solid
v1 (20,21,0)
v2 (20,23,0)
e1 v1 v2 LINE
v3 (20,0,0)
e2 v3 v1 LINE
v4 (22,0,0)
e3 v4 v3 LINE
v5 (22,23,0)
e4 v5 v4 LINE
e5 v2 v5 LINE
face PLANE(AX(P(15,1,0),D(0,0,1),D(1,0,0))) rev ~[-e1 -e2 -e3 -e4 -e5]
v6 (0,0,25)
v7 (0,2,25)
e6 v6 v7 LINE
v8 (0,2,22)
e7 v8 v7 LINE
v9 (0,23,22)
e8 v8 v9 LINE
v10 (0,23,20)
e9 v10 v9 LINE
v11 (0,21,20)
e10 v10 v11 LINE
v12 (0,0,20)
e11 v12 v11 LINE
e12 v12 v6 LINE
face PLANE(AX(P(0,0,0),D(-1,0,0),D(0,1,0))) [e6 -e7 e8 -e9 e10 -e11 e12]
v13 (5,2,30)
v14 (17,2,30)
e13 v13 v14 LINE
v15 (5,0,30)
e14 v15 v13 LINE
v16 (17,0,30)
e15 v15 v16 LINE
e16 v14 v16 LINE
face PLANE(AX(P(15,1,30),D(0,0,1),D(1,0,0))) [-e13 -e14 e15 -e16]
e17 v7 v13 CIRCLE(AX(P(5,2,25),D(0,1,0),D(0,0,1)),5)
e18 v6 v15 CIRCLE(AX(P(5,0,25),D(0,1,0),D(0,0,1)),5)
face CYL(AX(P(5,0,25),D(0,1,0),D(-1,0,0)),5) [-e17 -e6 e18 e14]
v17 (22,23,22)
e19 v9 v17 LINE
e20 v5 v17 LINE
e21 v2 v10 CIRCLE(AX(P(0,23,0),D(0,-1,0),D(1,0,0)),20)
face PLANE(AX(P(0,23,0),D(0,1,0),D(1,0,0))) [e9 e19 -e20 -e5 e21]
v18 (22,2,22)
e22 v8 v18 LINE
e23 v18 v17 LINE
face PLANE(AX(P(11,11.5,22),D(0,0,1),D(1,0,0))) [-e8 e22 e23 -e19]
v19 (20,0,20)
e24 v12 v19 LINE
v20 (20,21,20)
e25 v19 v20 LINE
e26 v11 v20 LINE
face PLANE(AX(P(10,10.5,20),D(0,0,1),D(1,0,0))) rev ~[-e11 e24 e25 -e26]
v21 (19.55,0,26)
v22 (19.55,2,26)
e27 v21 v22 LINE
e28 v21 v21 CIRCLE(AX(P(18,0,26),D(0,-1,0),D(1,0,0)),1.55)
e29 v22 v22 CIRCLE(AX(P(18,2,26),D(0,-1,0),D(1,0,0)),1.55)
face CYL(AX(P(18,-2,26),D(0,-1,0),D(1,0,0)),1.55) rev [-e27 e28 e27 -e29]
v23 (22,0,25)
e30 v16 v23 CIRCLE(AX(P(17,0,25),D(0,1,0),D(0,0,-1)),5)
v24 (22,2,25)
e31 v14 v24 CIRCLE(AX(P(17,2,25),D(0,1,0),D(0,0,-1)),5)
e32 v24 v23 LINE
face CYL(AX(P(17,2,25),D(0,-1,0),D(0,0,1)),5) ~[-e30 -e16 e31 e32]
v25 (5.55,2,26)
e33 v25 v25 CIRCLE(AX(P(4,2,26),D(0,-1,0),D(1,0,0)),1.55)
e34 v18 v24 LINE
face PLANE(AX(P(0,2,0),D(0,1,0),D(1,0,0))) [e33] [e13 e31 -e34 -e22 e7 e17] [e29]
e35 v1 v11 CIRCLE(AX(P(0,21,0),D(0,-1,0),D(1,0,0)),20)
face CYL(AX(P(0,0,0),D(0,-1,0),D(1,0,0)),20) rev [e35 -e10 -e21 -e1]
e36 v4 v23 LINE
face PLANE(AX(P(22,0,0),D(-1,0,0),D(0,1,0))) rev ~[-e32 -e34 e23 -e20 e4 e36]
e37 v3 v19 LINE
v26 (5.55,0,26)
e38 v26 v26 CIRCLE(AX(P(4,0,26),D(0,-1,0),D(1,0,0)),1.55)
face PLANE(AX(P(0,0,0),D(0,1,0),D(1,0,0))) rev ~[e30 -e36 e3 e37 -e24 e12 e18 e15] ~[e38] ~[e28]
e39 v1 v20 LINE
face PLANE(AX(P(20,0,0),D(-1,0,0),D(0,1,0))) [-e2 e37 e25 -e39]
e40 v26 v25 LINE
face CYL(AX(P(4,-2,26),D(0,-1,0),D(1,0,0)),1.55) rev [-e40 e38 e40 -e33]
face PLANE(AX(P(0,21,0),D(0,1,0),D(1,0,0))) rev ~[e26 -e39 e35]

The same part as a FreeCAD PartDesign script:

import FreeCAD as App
import Part
import Sketcher

V = App.Vector
Q = App.Units.Quantity


def edges_at(feature, points):
    """Names of the edges that pass closest to the given points."""
    edges = feature.Shape.Edges
    near = lambda p: min(range(len(edges)), key=lambda i: edges[i].distToShape(Part.Vertex(*p))[0])
    return sorted({f"Edge{near(p) + 1}" for p in points})

doc = App.newDocument("Part")
params = doc.addObject("Spreadsheet::Sheet", "Params")
for row, (alias, value) in enumerate([
    ("sketch1_diameter", "40 mm"),
    ("pad1_length", "25 mm"),
    ("sketch2_diameter", "3.1 mm"),
    ("pad2_length", "10 mm"),
    ("sketch3_diameter", "3.1 mm"),
    ("pad3_length", "10 mm"),
    ("sketch4_width", "10 mm"),
    ("sketch4_height", "6 mm"),
    ("pad4_length", "31 mm"),
    ("sketch5_width", "20 mm"),
    ("sketch5_height", "21 mm"),
    ("pad5_length", "20 mm"),
    ("sketch6_width", "22 mm"),
    ("sketch6_height", "23 mm"),
    ("pad6_length", "22 mm"),
    ("sketch7_width", "30 mm"),
    ("sketch7_height", "2 mm"),
    ("pad7_length", "30 mm"),
    ("fillet_radius", "5 mm"),
    ("fillet2_radius", "5 mm"),
], start=1):
    params.set(f"A{row}", alias)
    params.set(f"B{row}", "=" + value)
    params.setAlias(f"B{row}", alias)

body = doc.addObject("PartDesign::Body", "Body")

# Sketch on XY plane
sketch1 = body.newObject("Sketcher::SketchObject", "Sketch")
sketch1.AttachmentSupport = (doc.getObject("XY_Plane"), [""])
sketch1.MapMode = "FlatFace"
sketch1.addGeometry(Part.Circle(V(0, 0, 0), V(0, 0, 1), 20), False)
sketch1.addConstraint([
    Sketcher.Constraint("Coincident", 0, 3, -1, 1),
    Sketcher.Constraint("Diameter", 0, Q("40 mm")),
])
sketch1.setExpression("Constraints[1]", "Params.sketch1_diameter")
pad1 = body.newObject("PartDesign::Pad", "Pad")
pad1.Profile = sketch1
pad1.setExpression("Length", "Params.pad1_length")
body2 = doc.addObject("PartDesign::Body", "Body001")
doc.recompute()

body.Placement = App.Placement(V(0, 0, 0), App.Rotation(V(1, 0, 0), 270))
boolean = body2.newObject("PartDesign::Boolean", "Boolean")
boolean.Type = "Fuse"
boolean.addObjects([body])
body3 = doc.addObject("PartDesign::Body", "Body002")

# Sketch on XY plane
sketch2 = body3.newObject("Sketcher::SketchObject", "Sketch001")
sketch2.AttachmentSupport = (doc.getObject("XY_Plane002"), [""])
sketch2.MapMode = "FlatFace"
sketch2.addGeometry(Part.Circle(V(0, 0, 0), V(0, 0, 1), 1.6), False)
sketch2.addConstraint([
    Sketcher.Constraint("Coincident", 0, 3, -1, 1),
    Sketcher.Constraint("Diameter", 0, Q("3.1 mm")),
])
sketch2.setExpression("Constraints[1]", "Params.sketch2_diameter")
pad2 = body3.newObject("PartDesign::Pad", "Pad001")
pad2.Profile = sketch2
pad2.setExpression("Length", "Params.pad2_length")
body4 = doc.addObject("PartDesign::Body", "Body003")
doc.recompute()

body3.Placement = App.Placement(V(0, 0, 0), App.Rotation(V(1, 0, 0), 270))
boolean2 = body4.newObject("PartDesign::Boolean", "Boolean001")
boolean2.Type = "Fuse"
boolean2.addObjects([body3])
body5 = doc.addObject("PartDesign::Body", "Body004")
doc.recompute()

body4.Placement = App.Placement(V(4, -2, 26), App.Rotation(V(0, 0, 1), 0))
boolean3 = body5.newObject("PartDesign::Boolean", "Boolean002")
boolean3.Type = "Fuse"
boolean3.addObjects([body4])
body6 = doc.addObject("PartDesign::Body", "Body005")

# Sketch on XY plane
sketch3 = body6.newObject("Sketcher::SketchObject", "Sketch002")
sketch3.AttachmentSupport = (doc.getObject("XY_Plane005"), [""])
sketch3.MapMode = "FlatFace"
sketch3.addGeometry(Part.Circle(V(0, 0, 0), V(0, 0, 1), 1.6), False)
sketch3.addConstraint([
    Sketcher.Constraint("Coincident", 0, 3, -1, 1),
    Sketcher.Constraint("Diameter", 0, Q("3.1 mm")),
])
sketch3.setExpression("Constraints[1]", "Params.sketch3_diameter")
pad3 = body6.newObject("PartDesign::Pad", "Pad002")
pad3.Profile = sketch3
pad3.setExpression("Length", "Params.pad3_length")
body7 = doc.addObject("PartDesign::Body", "Body006")
doc.recompute()

body6.Placement = App.Placement(V(0, 0, 0), App.Rotation(V(1, 0, 0), 270))
boolean4 = body7.newObject("PartDesign::Boolean", "Boolean003")
boolean4.Type = "Fuse"
boolean4.addObjects([body6])
body8 = doc.addObject("PartDesign::Body", "Body007")
doc.recompute()

body7.Placement = App.Placement(V(18, -2, 26), App.Rotation(V(0, 0, 1), 0))
boolean5 = body8.newObject("PartDesign::Boolean", "Boolean004")
boolean5.Type = "Fuse"
boolean5.addObjects([body7])
body9 = doc.addObject("PartDesign::Body", "Body008")

# Sketch on XY plane
sketch4 = body9.newObject("Sketcher::SketchObject", "Sketch003")
sketch4.AttachmentSupport = (doc.getObject("XY_Plane008"), [""])
sketch4.MapMode = "FlatFace"
sketch4.addGeometry([
    Part.LineSegment(V(22, 6, 0), V(22, 0, 0)),
    Part.LineSegment(V(22, 0, 0), V(32, 0, 0)),
    Part.LineSegment(V(32, 0, 0), V(32, 6, 0)),
    Part.LineSegment(V(32, 6, 0), V(22, 6, 0)),
], False)
sketch4.addConstraint([
    Sketcher.Constraint("Coincident", 0, 2, 1, 1),
    Sketcher.Constraint("Coincident", 1, 2, 2, 1),
    Sketcher.Constraint("Coincident", 2, 2, 3, 1),
    Sketcher.Constraint("Coincident", 3, 2, 0, 1),
    Sketcher.Constraint("Vertical", 0),
    Sketcher.Constraint("Horizontal", 1),
    Sketcher.Constraint("Vertical", 2),
    Sketcher.Constraint("Horizontal", 3),
    Sketcher.Constraint("PointOnObject", 0, 2, -1),
    Sketcher.Constraint("DistanceX", 1, 1, 1, 2, Q("10 mm")),
    Sketcher.Constraint("DistanceY", 0, 2, 0, 1, Q("6 mm")),
    Sketcher.Constraint("DistanceX", -1, 1, 0, 2, Q("22 mm")),
])
sketch4.setExpression("Constraints[9]", "Params.sketch4_width")
sketch4.setExpression("Constraints[10]", "Params.sketch4_height")
pad4 = body9.newObject("PartDesign::Pad", "Pad003")
pad4.Profile = sketch4
pad4.setExpression("Length", "Params.pad4_length")
body10 = doc.addObject("PartDesign::Body", "Body009")

# Sketch on XY plane
sketch5 = body10.newObject("Sketcher::SketchObject", "Sketch004")
sketch5.AttachmentSupport = (doc.getObject("XY_Plane009"), [""])
sketch5.MapMode = "FlatFace"
sketch5.addGeometry([
    Part.LineSegment(V(0, 21, 0), V(0, 0, 0)),
    Part.LineSegment(V(0, 0, 0), V(20, 0, 0)),
    Part.LineSegment(V(20, 0, 0), V(20, 21, 0)),
    Part.LineSegment(V(20, 21, 0), V(0, 21, 0)),
], False)
sketch5.addConstraint([
    Sketcher.Constraint("Coincident", 0, 2, 1, 1),
    Sketcher.Constraint("Coincident", 1, 2, 2, 1),
    Sketcher.Constraint("Coincident", 2, 2, 3, 1),
    Sketcher.Constraint("Coincident", 3, 2, 0, 1),
    Sketcher.Constraint("Vertical", 0),
    Sketcher.Constraint("Horizontal", 1),
    Sketcher.Constraint("Vertical", 2),
    Sketcher.Constraint("Horizontal", 3),
    Sketcher.Constraint("Coincident", 0, 2, -1, 1),
    Sketcher.Constraint("DistanceX", 1, 1, 1, 2, Q("20 mm")),
    Sketcher.Constraint("DistanceY", 0, 2, 0, 1, Q("21 mm")),
])
sketch5.setExpression("Constraints[9]", "Params.sketch5_width")
sketch5.setExpression("Constraints[10]", "Params.sketch5_height")
pad5 = body10.newObject("PartDesign::Pad", "Pad004")
pad5.Profile = sketch5
pad5.setExpression("Length", "Params.pad5_length")
body11 = doc.addObject("PartDesign::Body", "Body010")

# Sketch on XY plane
sketch6 = body11.newObject("Sketcher::SketchObject", "Sketch005")
sketch6.AttachmentSupport = (doc.getObject("XY_Plane010"), [""])
sketch6.MapMode = "FlatFace"
sketch6.addGeometry([
    Part.LineSegment(V(0, 23, 0), V(0, 0, 0)),
    Part.LineSegment(V(0, 0, 0), V(22, 0, 0)),
    Part.LineSegment(V(22, 0, 0), V(22, 23, 0)),
    Part.LineSegment(V(22, 23, 0), V(0, 23, 0)),
], False)
sketch6.addConstraint([
    Sketcher.Constraint("Coincident", 0, 2, 1, 1),
    Sketcher.Constraint("Coincident", 1, 2, 2, 1),
    Sketcher.Constraint("Coincident", 2, 2, 3, 1),
    Sketcher.Constraint("Coincident", 3, 2, 0, 1),
    Sketcher.Constraint("Vertical", 0),
    Sketcher.Constraint("Horizontal", 1),
    Sketcher.Constraint("Vertical", 2),
    Sketcher.Constraint("Horizontal", 3),
    Sketcher.Constraint("Coincident", 0, 2, -1, 1),
    Sketcher.Constraint("DistanceX", 1, 1, 1, 2, Q("22 mm")),
    Sketcher.Constraint("DistanceY", 0, 2, 0, 1, Q("23 mm")),
])
sketch6.setExpression("Constraints[9]", "Params.sketch6_width")
sketch6.setExpression("Constraints[10]", "Params.sketch6_height")
pad6 = body11.newObject("PartDesign::Pad", "Pad005")
pad6.Profile = sketch6
pad6.setExpression("Length", "Params.pad6_length")
body12 = doc.addObject("PartDesign::Body", "Body011")

# Sketch on XY plane
sketch7 = body12.newObject("Sketcher::SketchObject", "Sketch006")
sketch7.AttachmentSupport = (doc.getObject("XY_Plane011"), [""])
sketch7.MapMode = "FlatFace"
sketch7.addGeometry([
    Part.LineSegment(V(0, 2, 0), V(0, 0, 0)),
    Part.LineSegment(V(0, 0, 0), V(30, 0, 0)),
    Part.LineSegment(V(30, 0, 0), V(30, 2, 0)),
    Part.LineSegment(V(30, 2, 0), V(0, 2, 0)),
], False)
sketch7.addConstraint([
    Sketcher.Constraint("Coincident", 0, 2, 1, 1),
    Sketcher.Constraint("Coincident", 1, 2, 2, 1),
    Sketcher.Constraint("Coincident", 2, 2, 3, 1),
    Sketcher.Constraint("Coincident", 3, 2, 0, 1),
    Sketcher.Constraint("Vertical", 0),
    Sketcher.Constraint("Horizontal", 1),
    Sketcher.Constraint("Vertical", 2),
    Sketcher.Constraint("Horizontal", 3),
    Sketcher.Constraint("Coincident", 0, 2, -1, 1),
    Sketcher.Constraint("DistanceX", 1, 1, 1, 2, Q("30 mm")),
    Sketcher.Constraint("DistanceY", 0, 2, 0, 1, Q("2 mm")),
])
sketch7.setExpression("Constraints[9]", "Params.sketch7_width")
sketch7.setExpression("Constraints[10]", "Params.sketch7_height")
pad7 = body12.newObject("PartDesign::Pad", "Pad006")
pad7.Profile = sketch7
pad7.setExpression("Length", "Params.pad7_length")
doc.recompute()

boolean6 = body12.newObject("PartDesign::Boolean", "Boolean005")
boolean6.Type = "Fuse"
boolean6.addObjects([body11])
doc.recompute()

boolean7 = body12.newObject("PartDesign::Boolean", "Boolean006")
boolean7.Type = "Cut"
boolean7.addObjects([body10])
doc.recompute()

boolean8 = body12.newObject("PartDesign::Boolean", "Boolean007")
boolean8.Type = "Cut"
boolean8.addObjects([body9])
doc.recompute()

boolean9 = body12.newObject("PartDesign::Boolean", "Boolean008")
boolean9.Type = "Cut"
boolean9.addObjects([body8])
doc.recompute()

boolean10 = body12.newObject("PartDesign::Boolean", "Boolean009")
boolean10.Type = "Cut"
boolean10.addObjects([body5])
doc.recompute()

boolean11 = body12.newObject("PartDesign::Boolean", "Boolean010")
boolean11.Type = "Cut"
boolean11.addObjects([body2])
doc.recompute()

fillet = body12.newObject("PartDesign::Fillet", "Fillet")
fillet.Base = (boolean11, edges_at(boolean11, [(0, 1, 30)]))
fillet.setExpression("Radius", "Params.fillet_radius")
doc.recompute()

fillet2 = body12.newObject("PartDesign::Fillet", "Fillet001")
fillet2.Base = (fillet, edges_at(fillet, [(22, 1, 30)]))
fillet2.setExpression("Radius", "Params.fillet2_radius")

doc.recompute()
